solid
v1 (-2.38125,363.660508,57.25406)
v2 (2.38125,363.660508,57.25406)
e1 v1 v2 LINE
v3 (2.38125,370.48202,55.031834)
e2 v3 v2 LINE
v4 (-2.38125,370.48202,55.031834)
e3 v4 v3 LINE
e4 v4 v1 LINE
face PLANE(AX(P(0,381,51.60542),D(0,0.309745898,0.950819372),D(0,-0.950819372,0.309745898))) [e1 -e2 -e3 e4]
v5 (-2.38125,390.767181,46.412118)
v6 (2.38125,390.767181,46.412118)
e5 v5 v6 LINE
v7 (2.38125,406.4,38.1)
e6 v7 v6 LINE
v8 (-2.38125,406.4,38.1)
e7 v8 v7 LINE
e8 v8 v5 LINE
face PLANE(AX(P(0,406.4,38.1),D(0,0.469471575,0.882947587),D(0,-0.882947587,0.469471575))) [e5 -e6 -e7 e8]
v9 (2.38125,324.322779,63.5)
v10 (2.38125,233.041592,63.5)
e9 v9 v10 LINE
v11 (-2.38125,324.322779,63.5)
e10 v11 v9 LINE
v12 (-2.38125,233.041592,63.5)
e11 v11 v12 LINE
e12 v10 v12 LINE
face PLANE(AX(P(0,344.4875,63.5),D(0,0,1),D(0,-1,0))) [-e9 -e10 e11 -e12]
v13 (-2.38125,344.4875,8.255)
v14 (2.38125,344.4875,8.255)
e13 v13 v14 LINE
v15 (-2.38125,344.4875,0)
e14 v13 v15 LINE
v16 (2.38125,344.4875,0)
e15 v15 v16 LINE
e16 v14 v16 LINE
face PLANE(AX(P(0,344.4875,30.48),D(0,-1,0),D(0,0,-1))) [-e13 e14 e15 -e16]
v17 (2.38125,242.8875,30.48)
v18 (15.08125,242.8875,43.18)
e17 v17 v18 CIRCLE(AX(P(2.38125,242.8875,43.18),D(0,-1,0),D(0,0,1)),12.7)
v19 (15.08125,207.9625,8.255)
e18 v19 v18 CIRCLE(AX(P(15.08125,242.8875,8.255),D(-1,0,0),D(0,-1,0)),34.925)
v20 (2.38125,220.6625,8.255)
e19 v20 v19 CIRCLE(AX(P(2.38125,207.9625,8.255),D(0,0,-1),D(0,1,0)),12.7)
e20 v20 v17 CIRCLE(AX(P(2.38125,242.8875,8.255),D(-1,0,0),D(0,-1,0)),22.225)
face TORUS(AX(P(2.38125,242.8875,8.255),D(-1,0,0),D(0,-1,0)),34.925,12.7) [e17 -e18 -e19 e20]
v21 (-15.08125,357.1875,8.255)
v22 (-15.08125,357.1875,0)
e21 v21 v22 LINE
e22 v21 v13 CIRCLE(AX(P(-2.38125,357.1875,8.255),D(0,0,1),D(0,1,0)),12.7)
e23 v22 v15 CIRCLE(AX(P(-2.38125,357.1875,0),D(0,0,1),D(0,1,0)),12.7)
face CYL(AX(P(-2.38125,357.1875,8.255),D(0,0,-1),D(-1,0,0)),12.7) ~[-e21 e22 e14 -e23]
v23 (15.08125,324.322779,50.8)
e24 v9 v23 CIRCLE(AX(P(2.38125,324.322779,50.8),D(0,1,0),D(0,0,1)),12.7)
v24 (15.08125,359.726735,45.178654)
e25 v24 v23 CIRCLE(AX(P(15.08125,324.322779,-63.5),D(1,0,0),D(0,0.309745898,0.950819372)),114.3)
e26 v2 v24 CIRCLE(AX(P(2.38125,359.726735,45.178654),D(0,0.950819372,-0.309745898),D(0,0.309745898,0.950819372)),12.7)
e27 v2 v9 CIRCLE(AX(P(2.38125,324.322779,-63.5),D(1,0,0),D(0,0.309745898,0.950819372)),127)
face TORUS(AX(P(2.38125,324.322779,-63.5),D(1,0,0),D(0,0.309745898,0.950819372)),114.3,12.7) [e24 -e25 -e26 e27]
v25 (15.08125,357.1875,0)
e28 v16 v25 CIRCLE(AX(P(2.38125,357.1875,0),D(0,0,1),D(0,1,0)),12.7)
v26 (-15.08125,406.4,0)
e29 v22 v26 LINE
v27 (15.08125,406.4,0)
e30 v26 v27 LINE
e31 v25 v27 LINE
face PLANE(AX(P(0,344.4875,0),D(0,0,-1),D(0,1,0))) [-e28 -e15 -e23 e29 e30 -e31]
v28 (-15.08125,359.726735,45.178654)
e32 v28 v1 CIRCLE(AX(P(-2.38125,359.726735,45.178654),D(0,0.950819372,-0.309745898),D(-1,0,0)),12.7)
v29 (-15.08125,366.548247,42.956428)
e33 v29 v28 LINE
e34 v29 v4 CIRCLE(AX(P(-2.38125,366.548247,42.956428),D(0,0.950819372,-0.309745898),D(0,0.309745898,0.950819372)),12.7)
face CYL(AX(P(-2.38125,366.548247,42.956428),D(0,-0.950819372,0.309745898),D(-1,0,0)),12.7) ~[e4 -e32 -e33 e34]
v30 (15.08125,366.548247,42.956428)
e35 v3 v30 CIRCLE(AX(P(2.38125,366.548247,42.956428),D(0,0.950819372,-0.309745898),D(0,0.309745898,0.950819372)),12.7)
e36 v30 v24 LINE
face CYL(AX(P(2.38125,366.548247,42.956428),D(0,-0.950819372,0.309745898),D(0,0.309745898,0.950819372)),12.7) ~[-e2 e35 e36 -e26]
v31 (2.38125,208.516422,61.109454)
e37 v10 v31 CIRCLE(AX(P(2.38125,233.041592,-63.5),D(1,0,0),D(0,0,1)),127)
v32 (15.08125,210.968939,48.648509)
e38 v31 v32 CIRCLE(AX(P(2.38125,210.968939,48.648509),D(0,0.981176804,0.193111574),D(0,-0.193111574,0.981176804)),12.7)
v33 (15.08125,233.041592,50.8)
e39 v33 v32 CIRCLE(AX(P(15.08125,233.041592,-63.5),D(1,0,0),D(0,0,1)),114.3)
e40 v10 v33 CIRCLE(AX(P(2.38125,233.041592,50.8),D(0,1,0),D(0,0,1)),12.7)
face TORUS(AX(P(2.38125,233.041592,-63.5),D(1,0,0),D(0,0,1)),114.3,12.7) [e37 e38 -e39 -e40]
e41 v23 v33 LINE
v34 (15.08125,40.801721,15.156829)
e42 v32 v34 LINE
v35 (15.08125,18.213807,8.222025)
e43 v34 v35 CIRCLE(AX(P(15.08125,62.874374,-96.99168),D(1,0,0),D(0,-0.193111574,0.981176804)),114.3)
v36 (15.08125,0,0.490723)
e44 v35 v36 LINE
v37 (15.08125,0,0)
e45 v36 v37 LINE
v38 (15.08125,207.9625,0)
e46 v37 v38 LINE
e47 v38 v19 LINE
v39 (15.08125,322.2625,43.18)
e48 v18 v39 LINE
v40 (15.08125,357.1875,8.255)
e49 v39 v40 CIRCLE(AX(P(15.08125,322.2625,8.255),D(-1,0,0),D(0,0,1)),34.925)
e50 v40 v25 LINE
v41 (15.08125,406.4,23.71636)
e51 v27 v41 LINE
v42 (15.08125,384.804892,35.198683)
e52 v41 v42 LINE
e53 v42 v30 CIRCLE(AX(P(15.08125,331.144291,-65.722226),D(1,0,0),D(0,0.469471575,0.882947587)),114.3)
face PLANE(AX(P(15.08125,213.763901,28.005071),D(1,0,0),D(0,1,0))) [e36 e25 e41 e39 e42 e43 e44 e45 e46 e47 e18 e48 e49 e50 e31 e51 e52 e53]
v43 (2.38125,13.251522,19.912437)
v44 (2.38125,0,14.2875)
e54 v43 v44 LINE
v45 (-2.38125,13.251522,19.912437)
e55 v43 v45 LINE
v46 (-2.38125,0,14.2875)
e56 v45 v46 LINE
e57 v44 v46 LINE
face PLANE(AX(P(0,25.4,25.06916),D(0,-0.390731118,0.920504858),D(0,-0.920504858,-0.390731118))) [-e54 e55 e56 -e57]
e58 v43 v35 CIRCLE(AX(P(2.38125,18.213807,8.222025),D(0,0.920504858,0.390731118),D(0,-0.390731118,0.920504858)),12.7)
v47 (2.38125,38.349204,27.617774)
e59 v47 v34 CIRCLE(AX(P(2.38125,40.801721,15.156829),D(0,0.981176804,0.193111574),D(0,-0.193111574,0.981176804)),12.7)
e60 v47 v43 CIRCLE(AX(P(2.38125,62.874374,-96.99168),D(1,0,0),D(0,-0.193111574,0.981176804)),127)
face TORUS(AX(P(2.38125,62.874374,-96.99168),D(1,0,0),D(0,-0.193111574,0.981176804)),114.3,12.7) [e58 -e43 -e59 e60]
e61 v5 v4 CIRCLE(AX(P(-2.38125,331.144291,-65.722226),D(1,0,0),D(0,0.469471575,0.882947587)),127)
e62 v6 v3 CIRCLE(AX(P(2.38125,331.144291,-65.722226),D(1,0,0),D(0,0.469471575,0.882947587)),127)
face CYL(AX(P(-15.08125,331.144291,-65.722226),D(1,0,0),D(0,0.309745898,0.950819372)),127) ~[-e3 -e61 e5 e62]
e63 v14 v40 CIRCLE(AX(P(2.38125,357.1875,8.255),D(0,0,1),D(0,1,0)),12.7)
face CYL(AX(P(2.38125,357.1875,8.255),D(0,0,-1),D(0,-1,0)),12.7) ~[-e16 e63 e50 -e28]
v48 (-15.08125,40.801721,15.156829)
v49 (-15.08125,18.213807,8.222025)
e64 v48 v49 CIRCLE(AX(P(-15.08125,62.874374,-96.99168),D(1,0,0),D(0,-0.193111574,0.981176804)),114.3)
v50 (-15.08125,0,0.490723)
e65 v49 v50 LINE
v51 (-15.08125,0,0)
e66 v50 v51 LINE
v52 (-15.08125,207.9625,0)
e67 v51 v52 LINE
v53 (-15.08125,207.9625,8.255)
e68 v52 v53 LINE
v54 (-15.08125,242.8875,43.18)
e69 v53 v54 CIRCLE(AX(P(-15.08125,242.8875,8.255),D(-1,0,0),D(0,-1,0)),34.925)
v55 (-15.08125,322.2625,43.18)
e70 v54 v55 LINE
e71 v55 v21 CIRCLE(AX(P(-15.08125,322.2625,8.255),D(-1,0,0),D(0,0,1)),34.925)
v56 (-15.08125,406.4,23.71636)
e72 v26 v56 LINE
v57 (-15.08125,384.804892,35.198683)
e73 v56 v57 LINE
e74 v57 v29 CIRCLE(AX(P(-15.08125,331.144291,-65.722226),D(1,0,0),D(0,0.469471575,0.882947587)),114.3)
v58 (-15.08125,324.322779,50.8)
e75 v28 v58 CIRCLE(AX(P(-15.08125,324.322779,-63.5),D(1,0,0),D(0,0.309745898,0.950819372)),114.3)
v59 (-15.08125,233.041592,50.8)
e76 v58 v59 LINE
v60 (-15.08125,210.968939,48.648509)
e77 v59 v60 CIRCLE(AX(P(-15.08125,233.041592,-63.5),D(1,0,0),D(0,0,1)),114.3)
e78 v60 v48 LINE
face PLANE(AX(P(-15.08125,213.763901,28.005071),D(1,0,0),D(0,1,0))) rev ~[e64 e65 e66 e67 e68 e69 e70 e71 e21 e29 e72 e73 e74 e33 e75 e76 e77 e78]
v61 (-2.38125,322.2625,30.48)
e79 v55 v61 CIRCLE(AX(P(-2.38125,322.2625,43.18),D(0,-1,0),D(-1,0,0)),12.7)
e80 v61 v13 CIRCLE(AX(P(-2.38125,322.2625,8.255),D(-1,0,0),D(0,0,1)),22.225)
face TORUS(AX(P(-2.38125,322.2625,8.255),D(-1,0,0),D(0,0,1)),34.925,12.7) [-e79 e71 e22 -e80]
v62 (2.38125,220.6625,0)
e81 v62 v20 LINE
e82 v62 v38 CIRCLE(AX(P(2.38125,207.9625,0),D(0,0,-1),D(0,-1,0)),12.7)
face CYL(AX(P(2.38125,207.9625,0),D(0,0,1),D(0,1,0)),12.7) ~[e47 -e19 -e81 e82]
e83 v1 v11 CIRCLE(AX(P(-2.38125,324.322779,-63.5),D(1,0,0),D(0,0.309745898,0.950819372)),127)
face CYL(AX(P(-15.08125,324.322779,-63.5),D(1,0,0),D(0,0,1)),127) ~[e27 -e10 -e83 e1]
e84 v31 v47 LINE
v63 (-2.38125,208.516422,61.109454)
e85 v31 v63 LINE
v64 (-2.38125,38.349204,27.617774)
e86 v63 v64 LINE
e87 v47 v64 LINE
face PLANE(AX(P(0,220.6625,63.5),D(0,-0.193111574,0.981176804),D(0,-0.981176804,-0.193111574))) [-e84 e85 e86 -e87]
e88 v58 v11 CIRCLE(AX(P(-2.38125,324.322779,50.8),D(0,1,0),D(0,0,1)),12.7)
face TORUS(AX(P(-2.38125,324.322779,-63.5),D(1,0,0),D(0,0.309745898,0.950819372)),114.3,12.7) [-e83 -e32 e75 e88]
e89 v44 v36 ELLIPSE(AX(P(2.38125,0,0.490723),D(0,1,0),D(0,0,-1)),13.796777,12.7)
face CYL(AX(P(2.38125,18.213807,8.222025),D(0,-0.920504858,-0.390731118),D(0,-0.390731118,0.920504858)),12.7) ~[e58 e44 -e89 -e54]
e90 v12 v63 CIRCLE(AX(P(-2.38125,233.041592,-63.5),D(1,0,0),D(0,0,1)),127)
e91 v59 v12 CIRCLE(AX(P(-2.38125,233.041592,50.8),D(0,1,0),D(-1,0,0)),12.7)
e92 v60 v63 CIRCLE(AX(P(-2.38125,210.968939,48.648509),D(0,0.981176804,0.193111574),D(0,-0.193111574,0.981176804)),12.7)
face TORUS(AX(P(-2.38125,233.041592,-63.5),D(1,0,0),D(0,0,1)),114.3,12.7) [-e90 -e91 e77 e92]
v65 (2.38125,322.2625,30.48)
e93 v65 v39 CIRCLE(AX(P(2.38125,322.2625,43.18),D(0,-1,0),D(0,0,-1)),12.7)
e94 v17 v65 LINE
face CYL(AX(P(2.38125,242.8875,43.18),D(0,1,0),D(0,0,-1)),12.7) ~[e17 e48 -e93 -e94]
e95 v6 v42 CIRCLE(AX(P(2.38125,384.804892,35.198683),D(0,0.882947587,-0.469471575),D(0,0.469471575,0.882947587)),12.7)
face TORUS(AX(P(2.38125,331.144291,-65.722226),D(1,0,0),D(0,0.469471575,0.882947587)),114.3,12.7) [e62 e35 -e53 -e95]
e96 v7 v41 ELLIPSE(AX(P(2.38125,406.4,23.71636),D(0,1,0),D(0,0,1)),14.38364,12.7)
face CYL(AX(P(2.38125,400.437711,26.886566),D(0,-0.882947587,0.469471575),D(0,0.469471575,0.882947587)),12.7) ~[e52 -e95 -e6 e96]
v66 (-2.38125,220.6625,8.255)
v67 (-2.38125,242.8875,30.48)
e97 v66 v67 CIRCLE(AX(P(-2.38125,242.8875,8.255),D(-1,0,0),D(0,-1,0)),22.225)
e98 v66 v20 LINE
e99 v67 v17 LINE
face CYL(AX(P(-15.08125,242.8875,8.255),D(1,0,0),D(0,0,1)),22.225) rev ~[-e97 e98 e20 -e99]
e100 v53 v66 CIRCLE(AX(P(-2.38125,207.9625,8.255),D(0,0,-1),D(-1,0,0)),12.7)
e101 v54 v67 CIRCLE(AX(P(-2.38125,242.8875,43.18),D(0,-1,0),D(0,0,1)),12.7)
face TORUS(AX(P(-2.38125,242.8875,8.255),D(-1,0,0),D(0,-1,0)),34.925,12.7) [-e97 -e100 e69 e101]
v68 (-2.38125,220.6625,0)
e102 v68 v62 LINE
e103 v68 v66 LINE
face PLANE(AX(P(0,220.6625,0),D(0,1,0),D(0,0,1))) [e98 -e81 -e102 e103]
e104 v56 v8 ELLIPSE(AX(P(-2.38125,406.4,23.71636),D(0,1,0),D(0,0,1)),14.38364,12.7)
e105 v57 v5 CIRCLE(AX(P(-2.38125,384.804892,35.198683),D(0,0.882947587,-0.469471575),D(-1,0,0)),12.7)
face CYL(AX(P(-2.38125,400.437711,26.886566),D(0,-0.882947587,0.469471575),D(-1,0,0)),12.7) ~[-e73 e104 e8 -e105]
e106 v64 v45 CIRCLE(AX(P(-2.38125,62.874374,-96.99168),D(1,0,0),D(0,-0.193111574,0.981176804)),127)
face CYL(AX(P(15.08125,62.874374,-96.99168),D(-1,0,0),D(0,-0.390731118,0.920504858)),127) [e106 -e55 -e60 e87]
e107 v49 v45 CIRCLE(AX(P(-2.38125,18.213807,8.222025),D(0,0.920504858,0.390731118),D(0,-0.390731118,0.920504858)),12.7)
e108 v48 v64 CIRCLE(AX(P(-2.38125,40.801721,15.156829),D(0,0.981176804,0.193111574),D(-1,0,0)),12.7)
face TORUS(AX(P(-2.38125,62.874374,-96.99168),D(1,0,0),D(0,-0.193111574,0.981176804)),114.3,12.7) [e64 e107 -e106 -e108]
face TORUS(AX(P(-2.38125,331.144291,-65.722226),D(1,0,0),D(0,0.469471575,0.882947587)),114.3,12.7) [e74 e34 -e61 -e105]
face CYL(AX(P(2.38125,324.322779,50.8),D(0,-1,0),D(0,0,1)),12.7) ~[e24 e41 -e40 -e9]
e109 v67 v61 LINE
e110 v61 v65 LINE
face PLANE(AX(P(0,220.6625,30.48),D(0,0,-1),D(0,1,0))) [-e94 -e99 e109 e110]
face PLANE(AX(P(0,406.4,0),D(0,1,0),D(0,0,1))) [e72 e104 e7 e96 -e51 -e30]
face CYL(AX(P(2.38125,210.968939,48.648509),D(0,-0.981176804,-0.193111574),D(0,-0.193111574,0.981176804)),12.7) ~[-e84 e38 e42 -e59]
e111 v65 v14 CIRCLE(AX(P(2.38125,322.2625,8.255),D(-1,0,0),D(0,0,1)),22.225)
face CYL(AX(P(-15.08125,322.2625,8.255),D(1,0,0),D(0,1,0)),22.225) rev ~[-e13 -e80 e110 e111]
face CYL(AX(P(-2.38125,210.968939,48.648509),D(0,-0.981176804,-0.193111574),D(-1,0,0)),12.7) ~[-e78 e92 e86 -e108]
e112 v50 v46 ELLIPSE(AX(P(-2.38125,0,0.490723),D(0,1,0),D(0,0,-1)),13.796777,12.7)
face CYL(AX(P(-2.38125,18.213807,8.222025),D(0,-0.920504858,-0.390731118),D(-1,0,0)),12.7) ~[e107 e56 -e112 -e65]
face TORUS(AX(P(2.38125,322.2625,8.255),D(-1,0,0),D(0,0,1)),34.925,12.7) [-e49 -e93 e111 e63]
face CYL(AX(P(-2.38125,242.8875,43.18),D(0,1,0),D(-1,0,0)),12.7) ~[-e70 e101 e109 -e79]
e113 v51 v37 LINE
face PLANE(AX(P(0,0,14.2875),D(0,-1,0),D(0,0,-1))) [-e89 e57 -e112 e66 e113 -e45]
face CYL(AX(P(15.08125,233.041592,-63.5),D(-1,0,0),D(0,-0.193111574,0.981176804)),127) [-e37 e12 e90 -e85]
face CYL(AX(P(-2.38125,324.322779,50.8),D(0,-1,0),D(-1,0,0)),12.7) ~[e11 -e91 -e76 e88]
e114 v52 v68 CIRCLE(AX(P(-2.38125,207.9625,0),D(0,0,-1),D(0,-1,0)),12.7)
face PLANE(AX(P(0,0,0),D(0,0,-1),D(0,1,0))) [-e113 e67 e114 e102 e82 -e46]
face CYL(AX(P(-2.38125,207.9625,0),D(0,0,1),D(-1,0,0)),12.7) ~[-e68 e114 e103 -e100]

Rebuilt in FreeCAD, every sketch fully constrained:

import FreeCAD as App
import Part
import Sketcher
from FreeCAD import Vector
Q = App.Units.Quantity


def edges_at(feature, points):
    """Names of the edges that pass closest to the given points."""
    edges = feature.Shape.Edges
    near = lambda p: min(range(len(edges)), key=lambda i: edges[i].distToShape(Part.Vertex(*p))[0])
    return sorted({f"Edge{near(p) + 1}" for p in points})


def add_polygon(sketch, points):
    """Adds a closed chain of lines whose ends are joined by coincident constraints."""
    first, n = sketch.GeometryCount, len(points)
    for a, b in zip(points, points[1:] + points[:1]):
        sketch.addGeometry(Part.LineSegment(App.Vector(*a, 0), App.Vector(*b, 0)), False)
    for i in range(n):
        sketch.addConstraint(Sketcher.Constraint("Coincident", first + i, 2, first + (i + 1) % n, 1))

doc = App.newDocument("Part")
body = doc.addObject("PartDesign::Body", "Body")

# Sketch on YZ plane
sketch1 = doc.addObject("Sketcher::SketchObject", "Sketch")
body.addObject(sketch1)
sketch1.AttachmentSupport = (doc.YZ_Plane, [""])
sketch1.MapMode = "FlatFace"
add_polygon(sketch1, [(0, 14), (0, 0), (221, 0), (221, 30), (344, 30), (344, 0), (406, 0), (406, 38), (381, 52), (344, 64), (221, 64), (25, 25)])  # lines 0-11
sketch1.addConstraint(Sketcher.Constraint("Vertical", 0))
sketch1.addConstraint(Sketcher.Constraint("Horizontal", 1))
sketch1.addConstraint(Sketcher.Constraint("Vertical", 2))
sketch1.addConstraint(Sketcher.Constraint("Horizontal", 3))
sketch1.addConstraint(Sketcher.Constraint("Vertical", 4))
sketch1.addConstraint(Sketcher.Constraint("Horizontal", 5))
sketch1.addConstraint(Sketcher.Constraint("Vertical", 6))
sketch1.addConstraint(Sketcher.Constraint("Horizontal", 9))
sketch1.addConstraint(Sketcher.Constraint("Coincident", 0, 2, -1, 1))
sketch1.addConstraint(Sketcher.Constraint("PointOnObject", 4, 2, -1))
sketch1.addConstraint(Sketcher.Constraint("Vertical", 4, 2, 8, 2))
sketch1.addConstraint(Sketcher.Constraint("Vertical", 2, 2, 9, 2))
sketch1.addConstraint(Sketcher.Constraint("DistanceY", 2, 1, 2, 2, Q("1.2 in")))
sketch1.addConstraint(Sketcher.Constraint("DistanceY", 6, 1, 6, 2, Q("1.5 in")))
sketch1.addConstraint(Sketcher.Constraint("DistanceX", -1, 1, 5, 2, Q("16 in")))
sketch1.addConstraint(Sketcher.Constraint("DistanceX", -1, 1, 7, 2, Q("15 in")))
sketch1.addConstraint(Sketcher.Constraint("DistanceX", -1, 1, 10, 2, Q("1 in")))
sketch1.addConstraint(Sketcher.Constraint("Angle", 7, Q("151.999999 deg")))
sketch1.addConstraint(Sketcher.Constraint("Angle", 11, Q("-157.000001 deg")))
sketch1.addConstraint(Sketcher.Constraint("DistanceY", 6, 2, 8, 2, Q("1 in")))
sketch1.addConstraint(Sketcher.Constraint("DistanceX", 1, 1, 1, 2, Q("8.6875 in")))
sketch1.addConstraint(Sketcher.Constraint("DistanceX", 3, 1, 3, 2, Q("4.875 in")))
sketch1.addConstraint(Sketcher.Constraint("DistanceY", 0, 2, 0, 1, Q("0.5625 in")))
pad1 = doc.addObject("PartDesign::Pad", "Pad")
body.addObject(pad1)
pad1.Profile = sketch1
pad1.Type = "TwoLengths"
pad1.Length = Q("0.59375 in")
pad1.Length2 = Q("0.59375 in")
doc.recompute()

fillet = doc.addObject("PartDesign::Fillet", "Fillet")
body.addObject(fillet)
fillet.Base = (pad1, edges_at(pad1, [
    (0, 25.4, 25.069),
    (0, 381, 51.605),
    (0, 344.488, 63.5),
    (0, 220.662, 63.5),
]))
fillet.Radius = Q("5 in")
doc.recompute()

fillet2 = doc.addObject("PartDesign::Fillet", "Fillet001")
body.addObject(fillet2)
fillet2.Base = (fillet, edges_at(fillet, [(0, 220.662, 30.48), (0, 344.488, 30.48)]))
fillet2.Radius = Q("0.875 in")
doc.recompute()

fillet3 = doc.addObject("PartDesign::Fillet", "Fillet002")
body.addObject(fillet3)
fillet3.Base = (fillet2, edges_at(fillet2, [
    (15.081, 282.575, 30.48),
    (15.081, 278.682, 63.5),
    (-15.081, 278.682, 63.5),
    (-15.081, 282.575, 30.48),
]))
fillet3.Radius = Q("0.5 in")

doc.recompute()
